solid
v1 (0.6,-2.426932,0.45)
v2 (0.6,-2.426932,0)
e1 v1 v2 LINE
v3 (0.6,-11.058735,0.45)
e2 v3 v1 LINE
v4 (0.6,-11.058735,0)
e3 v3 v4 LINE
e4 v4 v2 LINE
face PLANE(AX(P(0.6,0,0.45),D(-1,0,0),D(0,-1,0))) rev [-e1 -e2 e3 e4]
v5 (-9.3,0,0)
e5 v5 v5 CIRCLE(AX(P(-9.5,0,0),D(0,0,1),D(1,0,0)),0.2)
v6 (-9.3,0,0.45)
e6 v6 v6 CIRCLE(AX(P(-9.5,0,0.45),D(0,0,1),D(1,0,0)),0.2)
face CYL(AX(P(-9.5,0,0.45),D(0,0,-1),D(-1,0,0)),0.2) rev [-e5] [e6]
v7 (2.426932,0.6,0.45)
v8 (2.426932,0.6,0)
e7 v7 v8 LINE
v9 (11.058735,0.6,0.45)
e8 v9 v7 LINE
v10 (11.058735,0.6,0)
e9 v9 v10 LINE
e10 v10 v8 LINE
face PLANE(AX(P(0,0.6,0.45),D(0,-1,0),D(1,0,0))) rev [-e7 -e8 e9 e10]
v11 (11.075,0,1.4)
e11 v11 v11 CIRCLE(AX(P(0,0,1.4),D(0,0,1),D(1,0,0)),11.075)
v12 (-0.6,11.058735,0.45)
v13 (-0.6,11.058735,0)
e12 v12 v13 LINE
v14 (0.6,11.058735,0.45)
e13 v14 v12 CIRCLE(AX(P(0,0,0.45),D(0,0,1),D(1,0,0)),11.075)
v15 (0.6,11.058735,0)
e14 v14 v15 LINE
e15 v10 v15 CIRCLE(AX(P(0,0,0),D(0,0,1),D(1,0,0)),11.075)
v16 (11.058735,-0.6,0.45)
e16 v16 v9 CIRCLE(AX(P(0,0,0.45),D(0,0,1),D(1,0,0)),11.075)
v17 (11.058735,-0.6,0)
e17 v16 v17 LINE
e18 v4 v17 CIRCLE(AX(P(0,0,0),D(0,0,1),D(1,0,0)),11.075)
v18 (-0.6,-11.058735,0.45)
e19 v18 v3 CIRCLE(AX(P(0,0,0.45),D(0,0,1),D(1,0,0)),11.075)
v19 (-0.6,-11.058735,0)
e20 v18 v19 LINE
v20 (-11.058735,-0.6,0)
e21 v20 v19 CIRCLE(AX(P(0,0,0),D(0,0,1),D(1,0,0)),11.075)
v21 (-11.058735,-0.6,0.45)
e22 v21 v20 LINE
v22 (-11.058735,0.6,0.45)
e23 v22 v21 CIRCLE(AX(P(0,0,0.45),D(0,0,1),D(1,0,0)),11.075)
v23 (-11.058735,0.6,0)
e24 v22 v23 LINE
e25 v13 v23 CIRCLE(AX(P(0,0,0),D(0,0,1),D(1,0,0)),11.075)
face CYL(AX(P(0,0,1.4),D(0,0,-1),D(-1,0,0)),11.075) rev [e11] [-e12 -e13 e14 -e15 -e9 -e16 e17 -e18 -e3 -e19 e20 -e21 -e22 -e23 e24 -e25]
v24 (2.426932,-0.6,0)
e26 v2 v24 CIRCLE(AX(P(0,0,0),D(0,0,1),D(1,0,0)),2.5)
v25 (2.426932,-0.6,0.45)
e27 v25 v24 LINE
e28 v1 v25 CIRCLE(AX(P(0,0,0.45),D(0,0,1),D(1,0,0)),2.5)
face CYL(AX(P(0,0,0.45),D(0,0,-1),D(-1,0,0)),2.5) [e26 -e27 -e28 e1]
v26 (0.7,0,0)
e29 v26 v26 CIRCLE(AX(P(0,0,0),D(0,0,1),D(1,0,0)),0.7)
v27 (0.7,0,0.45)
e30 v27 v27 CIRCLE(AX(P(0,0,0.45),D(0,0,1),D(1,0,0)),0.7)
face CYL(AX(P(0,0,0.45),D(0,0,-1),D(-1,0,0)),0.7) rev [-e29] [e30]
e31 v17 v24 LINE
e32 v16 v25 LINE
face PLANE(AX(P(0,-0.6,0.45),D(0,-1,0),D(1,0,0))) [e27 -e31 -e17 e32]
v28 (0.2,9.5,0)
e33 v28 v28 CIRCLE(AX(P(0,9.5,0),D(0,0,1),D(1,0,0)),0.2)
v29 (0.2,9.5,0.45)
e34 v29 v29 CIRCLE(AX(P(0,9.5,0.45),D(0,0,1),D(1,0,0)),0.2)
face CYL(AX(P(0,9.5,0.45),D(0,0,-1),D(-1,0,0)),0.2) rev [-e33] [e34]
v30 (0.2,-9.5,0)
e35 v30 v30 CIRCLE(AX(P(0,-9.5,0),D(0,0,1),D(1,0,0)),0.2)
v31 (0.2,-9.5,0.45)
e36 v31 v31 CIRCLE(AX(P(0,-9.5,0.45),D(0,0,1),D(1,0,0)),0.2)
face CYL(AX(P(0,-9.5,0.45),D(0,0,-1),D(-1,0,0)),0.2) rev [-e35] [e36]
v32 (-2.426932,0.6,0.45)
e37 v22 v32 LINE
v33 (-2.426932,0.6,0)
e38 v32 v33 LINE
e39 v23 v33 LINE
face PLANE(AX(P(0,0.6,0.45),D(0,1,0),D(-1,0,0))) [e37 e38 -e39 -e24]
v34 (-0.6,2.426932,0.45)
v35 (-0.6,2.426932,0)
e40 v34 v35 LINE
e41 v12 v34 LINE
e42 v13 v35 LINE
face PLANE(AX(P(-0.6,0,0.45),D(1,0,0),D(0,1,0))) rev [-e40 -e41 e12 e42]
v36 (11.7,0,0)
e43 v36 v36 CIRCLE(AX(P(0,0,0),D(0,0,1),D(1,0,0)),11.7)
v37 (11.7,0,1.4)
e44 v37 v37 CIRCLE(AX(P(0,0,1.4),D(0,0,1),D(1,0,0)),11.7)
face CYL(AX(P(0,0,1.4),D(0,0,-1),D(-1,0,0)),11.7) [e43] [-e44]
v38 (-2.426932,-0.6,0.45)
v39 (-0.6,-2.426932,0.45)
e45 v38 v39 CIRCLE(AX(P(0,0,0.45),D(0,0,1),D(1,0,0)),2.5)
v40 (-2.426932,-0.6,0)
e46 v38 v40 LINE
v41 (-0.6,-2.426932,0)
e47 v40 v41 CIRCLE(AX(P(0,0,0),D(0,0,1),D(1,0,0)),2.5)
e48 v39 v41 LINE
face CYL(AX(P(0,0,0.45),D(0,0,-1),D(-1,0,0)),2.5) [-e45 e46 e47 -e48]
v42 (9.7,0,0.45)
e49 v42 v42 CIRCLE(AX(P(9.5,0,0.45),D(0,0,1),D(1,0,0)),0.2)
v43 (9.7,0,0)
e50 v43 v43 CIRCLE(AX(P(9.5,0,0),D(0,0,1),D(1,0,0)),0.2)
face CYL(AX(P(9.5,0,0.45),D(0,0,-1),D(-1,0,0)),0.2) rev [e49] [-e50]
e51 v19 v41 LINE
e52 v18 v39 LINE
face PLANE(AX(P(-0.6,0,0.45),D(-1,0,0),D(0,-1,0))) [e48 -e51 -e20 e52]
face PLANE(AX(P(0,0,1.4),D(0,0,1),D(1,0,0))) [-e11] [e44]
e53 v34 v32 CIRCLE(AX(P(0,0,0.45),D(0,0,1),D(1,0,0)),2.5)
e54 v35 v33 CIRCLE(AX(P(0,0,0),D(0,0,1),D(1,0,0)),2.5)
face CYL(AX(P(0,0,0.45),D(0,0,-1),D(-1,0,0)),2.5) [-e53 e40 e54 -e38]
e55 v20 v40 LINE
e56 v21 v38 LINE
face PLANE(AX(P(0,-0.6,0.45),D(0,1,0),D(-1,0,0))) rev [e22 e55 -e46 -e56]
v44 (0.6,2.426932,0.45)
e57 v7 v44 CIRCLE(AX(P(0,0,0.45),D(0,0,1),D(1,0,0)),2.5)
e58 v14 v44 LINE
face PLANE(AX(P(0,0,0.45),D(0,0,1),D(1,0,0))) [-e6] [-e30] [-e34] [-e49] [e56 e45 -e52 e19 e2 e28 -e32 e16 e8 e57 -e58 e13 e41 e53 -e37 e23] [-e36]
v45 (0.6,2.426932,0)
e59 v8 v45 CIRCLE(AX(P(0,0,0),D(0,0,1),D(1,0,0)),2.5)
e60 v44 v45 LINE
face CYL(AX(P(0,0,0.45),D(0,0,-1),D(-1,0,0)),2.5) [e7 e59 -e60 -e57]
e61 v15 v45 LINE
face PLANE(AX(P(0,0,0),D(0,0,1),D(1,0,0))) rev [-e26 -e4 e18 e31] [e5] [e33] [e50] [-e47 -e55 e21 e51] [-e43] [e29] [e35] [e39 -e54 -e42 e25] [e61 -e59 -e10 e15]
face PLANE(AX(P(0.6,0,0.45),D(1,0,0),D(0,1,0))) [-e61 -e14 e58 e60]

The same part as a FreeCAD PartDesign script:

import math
import FreeCAD as App
import Part
import Sketcher

V = App.Vector
Q = App.Units.Quantity

doc = App.newDocument("Part")
params = doc.addObject("Spreadsheet::Sheet", "Params")
for row, (alias, value) in enumerate([
    ("sketch1_diameter", "23.4 mm"),
    ("sketch1_diameter2", "22.15 mm"),
    ("pad1_length", "1.4 mm"),
    ("sketch2_diameter", "0.4 mm"),
    ("sketch2_diameter2", "1.4 mm"),
    ("sketch2_radius", "2.5 mm"),
    ("pad2_length", "0.45 mm"),
], start=1):
    params.set(f"A{row}", alias)
    params.set(f"B{row}", "=" + value)
    params.setAlias(f"B{row}", alias)

body = doc.addObject("PartDesign::Body", "Body")

# Sketch on XY plane
sketch1 = body.newObject("Sketcher::SketchObject", "Sketch")
sketch1.AttachmentSupport = (doc.getObject("XY_Plane"), [""])
sketch1.MapMode = "FlatFace"
sketch1.addGeometry([
    Part.Circle(V(0, 0, 0), V(0, 0, 1), 12),
    Part.Circle(V(0, 0, 0), V(0, 0, 1), 11),
], False)
sketch1.addConstraint([
    Sketcher.Constraint("Coincident", 0, 3, -1, 1),
    Sketcher.Constraint("Coincident", 1, 3, -1, 1),
    Sketcher.Constraint("Diameter", 0, Q("23.4 mm")),
    Sketcher.Constraint("Diameter", 1, Q("22.15 mm")),
])
sketch1.setExpression("Constraints[2]", "Params.sketch1_diameter")
sketch1.setExpression("Constraints[3]", "Params.sketch1_diameter2")
pad1 = body.newObject("PartDesign::Pad", "Pad")
pad1.Profile = sketch1
pad1.setExpression("Length", "Params.pad1_length")

# Sketch on XY plane
sketch2 = body.newObject("Sketcher::SketchObject", "Sketch001")
sketch2.AttachmentSupport = (doc.getObject("XY_Plane"), [""])
sketch2.MapMode = "FlatFace"
sketch2.addGeometry([
    Part.LineSegment(V(0.6, 2.43, 0), V(0.6, 11.06, 0)),  # 0
    Part.ArcOfCircle(Part.Circle(V(0, 0, 0), V(0, 0, 1), 11.07), math.radians(86.89), math.radians(93.11)),  # 1
    Part.LineSegment(V(-0.6, 11.06, 0), V(-0.6, 2.43, 0)),  # 2
    Part.ArcOfCircle(Part.Circle(V(0, 0, 0), V(0, 0, 1), 2.5), math.radians(104), math.radians(166)),  # 3
    Part.LineSegment(V(-2.43, 0.6, 0), V(-11.06, 0.6, 0)),  # 4
    Part.ArcOfCircle(Part.Circle(V(0, 0, 0), V(0, 0, 1), 11.07), math.radians(176.89), math.radians(183.11)),  # 5
    Part.LineSegment(V(-11.06, -0.6, 0), V(-2.43, -0.6, 0)),  # 6
    Part.ArcOfCircle(Part.Circle(V(0, 0, 0), V(0, 0, 1), 2.5), math.radians(-166), math.radians(-104)),  # 7
    Part.LineSegment(V(-0.6, -2.43, 0), V(-0.6, -11.06, 0)),  # 8
    Part.ArcOfCircle(Part.Circle(V(0, 0, 0), V(0, 0, 1), 11.07), math.radians(-93.11), math.radians(-86.89)),  # 9
    Part.LineSegment(V(0.6, -11.06, 0), V(0.6, -2.43, 0)),  # 10
    Part.ArcOfCircle(Part.Circle(V(0, 0, 0), V(0, 0, 1), 2.5), math.radians(-76), math.radians(-14)),  # 11
    Part.LineSegment(V(2.43, -0.6, 0), V(11.06, -0.6, 0)),  # 12
    Part.ArcOfCircle(Part.Circle(V(0, 0, 0), V(0, 0, 1), 11.07), math.radians(-3.11), math.radians(0)),  # 13
    Part.ArcOfCircle(Part.Circle(V(0, 0, 0), V(0, 0, 1), 11.07), math.radians(0), math.radians(3.11)),  # 14
    Part.LineSegment(V(11.06, 0.6, 0), V(2.43, 0.6, 0)),  # 15
    Part.ArcOfCircle(Part.Circle(V(0, 0, 0), V(0, 0, 1), 2.5), math.radians(14), math.radians(76)),  # 16
    Part.Circle(V(0, 9.5, 0), V(0, 0, 1), 0.2),  # 17
    Part.Circle(V(0, 0, 0), V(0, 0, 1), 0.7),  # 18
    Part.Circle(V(9.5, 0, 0), V(0, 0, 1), 0.2),  # 19
    Part.Circle(V(-9.5, 0, 0), V(0, 0, 1), 0.2),  # 20
    Part.Circle(V(0, -9.5, 0), V(0, 0, 1), 0.2),  # 21
], False)
sketch2.addConstraint([
    Sketcher.Constraint("Coincident", 0, 2, 1, 1),
    Sketcher.Constraint("Coincident", 1, 2, 2, 1),
    Sketcher.Constraint("Coincident", 2, 2, 3, 1),
    Sketcher.Constraint("Coincident", 3, 2, 4, 1),
    Sketcher.Constraint("Coincident", 4, 2, 5, 1),
    Sketcher.Constraint("Coincident", 5, 2, 6, 1),
    Sketcher.Constraint("Coincident", 6, 2, 7, 1),
    Sketcher.Constraint("Coincident", 7, 2, 8, 1),
    Sketcher.Constraint("Coincident", 8, 2, 9, 1),
    Sketcher.Constraint("Coincident", 9, 2, 10, 1),
    Sketcher.Constraint("Coincident", 10, 2, 11, 1),
    Sketcher.Constraint("Coincident", 11, 2, 12, 1),
    Sketcher.Constraint("Coincident", 12, 2, 13, 1),
    Sketcher.Constraint("Tangent", 13, 2, 14, 1),
    Sketcher.Constraint("Coincident", 14, 2, 15, 1),
    Sketcher.Constraint("Coincident", 15, 2, 16, 1),
    Sketcher.Constraint("Coincident", 16, 2, 0, 1),
    Sketcher.Constraint("Vertical", 0),
    Sketcher.Constraint("Vertical", 2),
    Sketcher.Constraint("Horizontal", 4),
    Sketcher.Constraint("Horizontal", 6),
    Sketcher.Constraint("Vertical", 8),
    Sketcher.Constraint("Vertical", 10),
    Sketcher.Constraint("Horizontal", 12),
    Sketcher.Constraint("Horizontal", 15),
    Sketcher.Constraint("Coincident", 1, 3, -1, 1),
    Sketcher.Constraint("Coincident", 3, 3, -1, 1),
    Sketcher.Constraint("Coincident", 5, 3, -1, 1),
    Sketcher.Constraint("Coincident", 7, 3, -1, 1),
    Sketcher.Constraint("Coincident", 9, 3, -1, 1),
    Sketcher.Constraint("Coincident", 11, 3, -1, 1),
    Sketcher.Constraint("Coincident", 13, 3, -1, 1),
    Sketcher.Constraint("Coincident", 16, 3, -1, 1),
    Sketcher.Constraint("Coincident", 18, 3, -1, 1),
    Sketcher.Constraint("Equal", 1, 5),
    Sketcher.Constraint("Equal", 3, 7),
    Sketcher.Constraint("Equal", 5, 9),
    Sketcher.Constraint("Equal", 7, 11),
    Sketcher.Constraint("Equal", 9, 13),
    Sketcher.Constraint("Equal", 13, 14),
    Sketcher.Constraint("Equal", 11, 16),
    Sketcher.Constraint("Equal", 17, 19),
    Sketcher.Constraint("Equal", 19, 20),
    Sketcher.Constraint("Equal", 20, 21),
    Sketcher.Constraint("Symmetric", 19, 3, 20, 3, -1, 1),
    Sketcher.Constraint("Symmetric", 17, 3, 21, 3, -1, 1),
    Sketcher.Constraint("PointOnObject", 17, 3, -2),
    Sketcher.Constraint("PointOnObject", 19, 3, -1),
    Sketcher.Constraint("PointOnObject", 13, 2, -1),
    Sketcher.Constraint("Horizontal", 0, 2, 1, 2),
    Sketcher.Constraint("Horizontal", 8, 2, 9, 2),
    Sketcher.Constraint("Horizontal", 6, 2, 11, 2),
    Sketcher.Constraint("Horizontal", 4, 2, 14, 2),
    Sketcher.Constraint("Vertical", 4, 2, 5, 2),
    Sketcher.Constraint("Vertical", 2, 2, 7, 2),
    Sketcher.Constraint("Equal", 15, 0),
    Sketcher.Constraint("Diameter", 17, Q("0.4 mm")),
    Sketcher.Constraint("Diameter", 18, Q("1.4 mm")),
    Sketcher.Constraint("Radius", 3, Q("2.5 mm")),
    Sketcher.Constraint("Radius", 1, Q("11.075 mm")),
    Sketcher.Constraint("DistanceY", -1, 1, 17, 3, Q("9.5 mm")),
    Sketcher.Constraint("DistanceX", -1, 1, 19, 3, Q("9.5 mm")),
    Sketcher.Constraint("DistanceX", -1, 1, 0, 2, Q("0.6 mm")),
])
sketch2.setExpression("Constraints[56]", "Params.sketch2_diameter")
sketch2.setExpression("Constraints[57]", "Params.sketch2_diameter2")
sketch2.setExpression("Constraints[58]", "Params.sketch2_radius")
pad2 = body.newObject("PartDesign::Pad", "Pad001")
pad2.Profile = sketch2
pad2.setExpression("Length", "Params.pad2_length")

doc.recompute()
